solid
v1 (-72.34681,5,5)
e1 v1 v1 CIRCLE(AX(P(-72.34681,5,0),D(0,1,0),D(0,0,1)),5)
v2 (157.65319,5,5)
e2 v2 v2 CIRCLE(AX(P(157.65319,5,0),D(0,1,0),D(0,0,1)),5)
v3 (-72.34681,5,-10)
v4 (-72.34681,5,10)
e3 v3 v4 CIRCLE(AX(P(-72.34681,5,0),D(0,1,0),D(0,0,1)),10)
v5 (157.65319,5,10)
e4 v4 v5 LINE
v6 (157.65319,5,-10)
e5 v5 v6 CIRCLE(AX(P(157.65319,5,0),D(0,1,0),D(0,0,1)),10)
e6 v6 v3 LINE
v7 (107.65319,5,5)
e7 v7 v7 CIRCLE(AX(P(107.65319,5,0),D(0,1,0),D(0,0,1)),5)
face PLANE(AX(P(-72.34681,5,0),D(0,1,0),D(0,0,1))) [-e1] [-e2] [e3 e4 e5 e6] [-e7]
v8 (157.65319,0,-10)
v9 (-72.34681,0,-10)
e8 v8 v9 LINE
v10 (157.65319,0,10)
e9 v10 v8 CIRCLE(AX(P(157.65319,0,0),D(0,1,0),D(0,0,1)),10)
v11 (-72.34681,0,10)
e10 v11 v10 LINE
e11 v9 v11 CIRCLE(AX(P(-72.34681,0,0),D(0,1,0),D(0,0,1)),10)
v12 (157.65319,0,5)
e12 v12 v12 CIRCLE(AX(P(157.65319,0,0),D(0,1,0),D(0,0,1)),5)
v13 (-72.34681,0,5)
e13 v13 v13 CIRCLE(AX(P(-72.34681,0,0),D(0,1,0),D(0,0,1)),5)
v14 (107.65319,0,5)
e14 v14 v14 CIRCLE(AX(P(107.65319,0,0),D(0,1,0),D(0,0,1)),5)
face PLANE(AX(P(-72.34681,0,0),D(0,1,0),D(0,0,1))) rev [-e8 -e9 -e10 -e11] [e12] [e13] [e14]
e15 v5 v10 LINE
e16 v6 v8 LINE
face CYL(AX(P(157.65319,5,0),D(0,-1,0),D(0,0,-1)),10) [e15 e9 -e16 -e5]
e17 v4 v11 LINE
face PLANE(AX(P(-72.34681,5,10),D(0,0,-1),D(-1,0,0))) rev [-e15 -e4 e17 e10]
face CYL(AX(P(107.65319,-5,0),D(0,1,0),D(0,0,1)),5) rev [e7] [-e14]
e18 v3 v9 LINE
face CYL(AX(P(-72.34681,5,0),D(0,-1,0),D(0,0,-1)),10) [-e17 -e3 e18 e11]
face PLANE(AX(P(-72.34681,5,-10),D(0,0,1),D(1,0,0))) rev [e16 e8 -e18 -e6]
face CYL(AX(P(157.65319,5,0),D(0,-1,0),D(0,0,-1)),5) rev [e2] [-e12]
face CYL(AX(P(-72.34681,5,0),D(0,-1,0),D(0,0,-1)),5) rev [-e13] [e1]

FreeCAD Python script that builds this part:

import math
import FreeCAD as App
import Part
import Sketcher

doc = App.newDocument("Part")
body = doc.addObject("PartDesign::Body", "Body")

sketch1 = body.newObject("Sketcher::SketchObject", "Sketch")
sketch1.AttachmentSupport = (doc.getObject("XZ_Plane"), [""])
sketch1.MapMode = "FlatFace"
sketch1.addGeometry([
    Part.LineSegment(App.Vector(158, -10, 0), App.Vector(-72, -10, 0)),
    Part.ArcOfCircle(Part.Circle(App.Vector(-72, 0, 0), App.Vector(0, 0, 1), 10), math.radians(90), math.radians(270)),
    Part.LineSegment(App.Vector(-72, 10, 0), App.Vector(158, 10, 0)),
    Part.ArcOfCircle(Part.Circle(App.Vector(158, 0, 0), App.Vector(0, 0, 1), 10), math.radians(-90), math.radians(90)),
    Part.Circle(App.Vector(158, 0, 0), App.Vector(0, 0, 1), 5),
    Part.Circle(App.Vector(-72, 0, 0), App.Vector(0, 0, 1), 5),
], False)
sketch1.addConstraint([
    Sketcher.Constraint("Tangent", 0, 2, 1, 2),
    Sketcher.Constraint("Tangent", 1, 1, 2, 1),
    Sketcher.Constraint("Tangent", 2, 2, 3, 2),
    Sketcher.Constraint("Tangent", 3, 1, 0, 1),
    Sketcher.Constraint("Horizontal", 0),
    Sketcher.Constraint("Horizontal", 2),
    Sketcher.Constraint("Coincident", 4, 3, 3, 3),
    Sketcher.Constraint("Coincident", 5, 3, 1, 3),
    Sketcher.Constraint("Equal", 4, 5),
    Sketcher.Constraint("PointOnObject", 1, 3, -1),
    Sketcher.Constraint("Diameter", 4, 10.0),
    Sketcher.Constraint("Radius", 1, 10.0),
    Sketcher.Constraint("DistanceX", 0, 2, 0, 1, 230.0),
    Sketcher.Constraint("DistanceX", 1, 3, -1, 1, 72.34681),
])
pad1 = body.newObject("PartDesign::Pad", "Pad")
pad1.Profile = sketch1
pad1.Length = 5
pad1.Reversed = True

sketch2 = body.newObject("Sketcher::SketchObject", "Sketch001")
sketch2.AttachmentSupport = (doc.getObject("XZ_Plane"), [""])
sketch2.MapMode = "FlatFace"
sketch2.AttachmentOffset = App.Placement(App.Vector(0, 0, -5), App.Rotation())
sketch2.addGeometry(Part.Circle(App.Vector(108, 0, 0), App.Vector(0, 0, 1), 5), False)
sketch2.addConstraint([
    Sketcher.Constraint("PointOnObject", 0, 3, -1),
    Sketcher.Constraint("Diameter", 0, 10.0),
    Sketcher.Constraint("DistanceX", -1, 1, 0, 3, 107.65319),
])
pocket1 = body.newObject("PartDesign::Pocket", "Pocket")
pocket1.Profile = sketch2
pocket1.Length = 10
pocket1.Reversed = True

doc.recompute()
